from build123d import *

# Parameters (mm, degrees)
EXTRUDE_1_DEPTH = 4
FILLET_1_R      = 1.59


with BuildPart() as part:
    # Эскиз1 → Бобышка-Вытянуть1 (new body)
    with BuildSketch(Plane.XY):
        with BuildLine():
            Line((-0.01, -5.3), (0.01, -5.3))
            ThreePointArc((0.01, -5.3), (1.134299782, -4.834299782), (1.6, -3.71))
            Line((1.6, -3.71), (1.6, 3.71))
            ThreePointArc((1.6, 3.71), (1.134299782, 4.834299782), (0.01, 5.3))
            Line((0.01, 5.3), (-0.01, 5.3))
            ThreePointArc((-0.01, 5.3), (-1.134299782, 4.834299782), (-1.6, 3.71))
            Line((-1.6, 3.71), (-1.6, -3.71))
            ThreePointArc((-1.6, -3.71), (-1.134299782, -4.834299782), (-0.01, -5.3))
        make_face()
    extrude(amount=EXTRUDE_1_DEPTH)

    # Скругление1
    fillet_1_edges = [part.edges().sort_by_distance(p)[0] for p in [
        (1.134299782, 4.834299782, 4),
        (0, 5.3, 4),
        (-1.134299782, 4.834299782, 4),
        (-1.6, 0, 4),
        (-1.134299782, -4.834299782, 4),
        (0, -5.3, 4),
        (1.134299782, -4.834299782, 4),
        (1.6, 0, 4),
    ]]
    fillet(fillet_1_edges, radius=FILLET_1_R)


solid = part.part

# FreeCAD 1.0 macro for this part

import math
import FreeCAD as App
import Part
import Sketcher


def edges_at(feature, points):
    """Names of the edges that pass closest to the given points."""
    edges = feature.Shape.Edges
    near = lambda p: min(range(len(edges)), key=lambda i: edges[i].distToShape(Part.Vertex(*p))[0])
    return sorted({f"Edge{near(p) + 1}" for p in points})

doc = App.newDocument("Part")
body = doc.addObject("PartDesign::Body", "Body")

sketch1 = body.newObject("Sketcher::SketchObject", "Sketch")
sketch1.AttachmentSupport = (doc.getObject("XY_Plane"), [""])
sketch1.MapMode = "FlatFace"
sketch1.addGeometry([
    Part.LineSegment(App.Vector(-0.01, -5.3, 0), App.Vector(0.01, -5.3, 0)),
    Part.ArcOfCircle(Part.Circle(App.Vector(0.01, -3.71, 0), App.Vector(0, 0, 1), 1.59), math.radians(-90), math.radians(0)),
    Part.LineSegment(App.Vector(1.6, -3.71, 0), App.Vector(1.6, 3.71, 0)),
    Part.ArcOfCircle(Part.Circle(App.Vector(0.01, 3.71, 0), App.Vector(0, 0, 1), 1.59), math.radians(0), math.radians(90)),
    Part.LineSegment(App.Vector(0.01, 5.3, 0), App.Vector(-0.01, 5.3, 0)),
    Part.ArcOfCircle(Part.Circle(App.Vector(-0.01, 3.71, 0), App.Vector(0, 0, 1), 1.59), math.radians(90), math.radians(180)),
    Part.LineSegment(App.Vector(-1.6, 3.71, 0), App.Vector(-1.6, -3.71, 0)),
    Part.ArcOfCircle(Part.Circle(App.Vector(-0.01, -3.71, 0), App.Vector(0, 0, 1), 1.59), math.radians(180), math.radians(270)),
], False)
sketch1.addConstraint([
    Sketcher.Constraint("Tangent", 0, 2, 1, 1),
    Sketcher.Constraint("Tangent", 1, 2, 2, 1),
    Sketcher.Constraint("Tangent", 2, 2, 3, 1),
    Sketcher.Constraint("Tangent", 3, 2, 4, 1),
    Sketcher.Constraint("Tangent", 4, 2, 5, 1),
    Sketcher.Constraint("Tangent", 5, 2, 6, 1),
    Sketcher.Constraint("Tangent", 6, 2, 7, 1),
    Sketcher.Constraint("Tangent", 7, 2, 0, 1),
    Sketcher.Constraint("Horizontal", 0),
    Sketcher.Constraint("Vertical", 2),
    Sketcher.Constraint("Horizontal", 4),
    Sketcher.Constraint("Vertical", 6),
    Sketcher.Constraint("Equal", 1, 3),
    Sketcher.Constraint("Equal", 3, 5),
    Sketcher.Constraint("Equal", 5, 7),
    Sketcher.Constraint("Symmetric", 1, 3, 5, 3, -1, 1),
    Sketcher.Constraint("Radius", 1, 1.59),
    Sketcher.Constraint("DistanceX", 0, 1, 0, 2, 0.02),
    Sketcher.Constraint("DistanceY", 2, 1, 2, 2, 7.42),
])
pad1 = body.newObject("PartDesign::Pad", "Pad")
pad1.Profile = sketch1
pad1.Length = 4
doc.recompute()

fillet = body.newObject("PartDesign::Fillet", "Fillet")
fillet.Base = (pad1, edges_at(pad1, [
    (1.134, 4.834, 4),
    (0, 5.3, 4),
    (-1.134, 4.834, 4),
    (-1.6, 0, 4),
    (-1.134, -4.834, 4),
    (0, -5.3, 4),
    (1.134, -4.834, 4),
    (1.6, 0, 4),
]))
fillet.Radius = 1.59

doc.recompute()
